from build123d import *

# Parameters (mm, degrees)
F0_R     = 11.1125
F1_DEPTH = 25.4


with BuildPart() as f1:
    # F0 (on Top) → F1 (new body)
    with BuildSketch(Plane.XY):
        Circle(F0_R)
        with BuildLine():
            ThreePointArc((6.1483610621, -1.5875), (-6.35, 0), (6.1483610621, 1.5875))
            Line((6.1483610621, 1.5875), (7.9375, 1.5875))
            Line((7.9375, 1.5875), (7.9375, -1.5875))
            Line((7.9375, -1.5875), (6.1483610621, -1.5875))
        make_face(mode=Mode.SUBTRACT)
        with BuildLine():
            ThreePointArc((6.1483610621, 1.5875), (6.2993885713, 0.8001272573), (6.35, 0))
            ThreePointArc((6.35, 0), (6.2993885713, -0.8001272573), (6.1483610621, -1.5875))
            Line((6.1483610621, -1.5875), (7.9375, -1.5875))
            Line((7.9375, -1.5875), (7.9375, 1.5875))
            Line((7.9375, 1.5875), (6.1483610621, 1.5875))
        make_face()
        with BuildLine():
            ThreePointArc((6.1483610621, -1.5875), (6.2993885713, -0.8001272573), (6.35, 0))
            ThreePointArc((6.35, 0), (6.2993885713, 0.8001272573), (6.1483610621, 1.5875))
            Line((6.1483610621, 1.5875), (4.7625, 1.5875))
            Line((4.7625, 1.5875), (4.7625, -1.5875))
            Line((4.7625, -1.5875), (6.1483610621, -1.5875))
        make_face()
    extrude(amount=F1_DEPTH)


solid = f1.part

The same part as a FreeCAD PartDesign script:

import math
import FreeCAD as App
import Part
import Sketcher
Q = App.Units.Quantity

doc = App.newDocument("Part")
body = doc.addObject("PartDesign::Body", "Body")

sketch1 = body.newObject("Sketcher::SketchObject", "Sketch")
sketch1.AttachmentSupport = (doc.getObject("XY_Plane"), [""])
sketch1.MapMode = "FlatFace"
sketch1.addGeometry([
    Part.Circle(App.Vector(0, 0, 0), App.Vector(0, 0, 1), 11.1),
    Part.ArcOfCircle(Part.Circle(App.Vector(0, 0, 0), App.Vector(0, 0, 1), 6.3), math.radians(14), math.radians(346)),
    Part.LineSegment(App.Vector(6.1, 1.6, 0), App.Vector(4.8, 1.6, 0)),
    Part.LineSegment(App.Vector(4.8, 1.6, 0), App.Vector(4.8, -1.6, 0)),
    Part.LineSegment(App.Vector(4.8, -1.6, 0), App.Vector(6.1, -1.6, 0)),
], False)
sketch1.addConstraint([
    Sketcher.Constraint("Coincident", 1, 1, 2, 1),
    Sketcher.Constraint("Coincident", 2, 2, 3, 1),
    Sketcher.Constraint("Coincident", 3, 2, 4, 1),
    Sketcher.Constraint("Coincident", 4, 2, 1, 2),
    Sketcher.Constraint("Horizontal", 2),
    Sketcher.Constraint("Vertical", 3),
    Sketcher.Constraint("Horizontal", 4),
    Sketcher.Constraint("Coincident", 0, 3, -1, 1),
    Sketcher.Constraint("Coincident", 1, 3, -1, 1),
    Sketcher.Constraint("Vertical", 1, 1, 4, 2),
    Sketcher.Constraint("Radius", 1, Q("0.25 in")),
    Sketcher.Constraint("Diameter", 0, Q("0.875 in")),
    Sketcher.Constraint("DistanceY", 3, 2, 3, 1, Q("0.125 in")),
    Sketcher.Constraint("DistanceX", -1, 1, 2, 2, Q("0.1875 in")),
])
pad1 = body.newObject("PartDesign::Pad", "Pad")
pad1.Profile = sketch1
pad1.Length = Q("1 in")

doc.recompute()
